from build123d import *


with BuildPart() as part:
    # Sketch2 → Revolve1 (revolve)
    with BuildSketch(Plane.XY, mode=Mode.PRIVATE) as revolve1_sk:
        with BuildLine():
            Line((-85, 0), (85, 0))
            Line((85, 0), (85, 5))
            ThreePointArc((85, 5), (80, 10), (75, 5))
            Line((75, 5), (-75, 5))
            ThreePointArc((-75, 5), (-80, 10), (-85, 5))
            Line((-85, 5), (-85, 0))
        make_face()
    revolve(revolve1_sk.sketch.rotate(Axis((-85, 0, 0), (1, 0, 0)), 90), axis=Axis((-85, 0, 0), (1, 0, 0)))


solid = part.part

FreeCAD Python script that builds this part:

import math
import FreeCAD as App
import Part
import Sketcher
from FreeCAD import Vector

doc = App.newDocument("Part")
body = doc.addObject("PartDesign::Body", "Body")

# Sketch on XY plane
sketch1 = doc.addObject("Sketcher::SketchObject", "Sketch")
body.addObject(sketch1)
sketch1.AttachmentSupport = (doc.XY_Plane, [""])
sketch1.MapMode = "FlatFace"
sketch1.addGeometry(Part.LineSegment(Vector(-85, 0, 0), Vector(85, 0, 0)), False)
sketch1.addGeometry(Part.LineSegment(Vector(85, 0, 0), Vector(85, 5, 0)), False)
sketch1.addGeometry(Part.ArcOfCircle(Part.Circle(Vector(80, 5, 0), Vector(0, 0, 1), 5), math.radians(0), math.radians(180)), False)
sketch1.addGeometry(Part.LineSegment(Vector(75, 5, 0), Vector(-75, 5, 0)), False)
sketch1.addGeometry(Part.ArcOfCircle(Part.Circle(Vector(-80, 5, 0), Vector(0, 0, 1), 5), math.radians(0), math.radians(180)), False)
sketch1.addGeometry(Part.LineSegment(Vector(-85, 5, 0), Vector(-85, 0, 0)), False)
sketch1.addConstraint(Sketcher.Constraint("Coincident", 0, 2, 1, 1))
sketch1.addConstraint(Sketcher.Constraint("Tangent", 1, 2, 2, 1))
sketch1.addConstraint(Sketcher.Constraint("Coincident", 2, 2, 3, 1))
sketch1.addConstraint(Sketcher.Constraint("Coincident", 3, 2, 4, 1))
sketch1.addConstraint(Sketcher.Constraint("Tangent", 4, 2, 5, 1))
sketch1.addConstraint(Sketcher.Constraint("Coincident", 5, 2, 0, 1))
sketch1.addConstraint(Sketcher.Constraint("Horizontal", 0))
sketch1.addConstraint(Sketcher.Constraint("Vertical", 1))
sketch1.addConstraint(Sketcher.Constraint("Horizontal", 3))
sketch1.addConstraint(Sketcher.Constraint("Vertical", 5))
sketch1.addConstraint(Sketcher.Constraint("Equal", 2, 4))
sketch1.addConstraint(Sketcher.Constraint("Symmetric", 0, 2, 5, 2, -1, 1))
sketch1.addConstraint(Sketcher.Constraint("Horizontal", 2, 3, 4, 3))
sketch1.addConstraint(Sketcher.Constraint("Horizontal", 1, 2, 2, 2))
sketch1.addConstraint(Sketcher.Constraint("Radius", 2, 5.0))
sketch1.addConstraint(Sketcher.Constraint("DistanceX", 0, 1, 0, 2, 170.0))
sketch1.addConstraint(Sketcher.Constraint("DistanceY", 1, 1, 1, 2, 5.0))
revolution = doc.addObject("PartDesign::Revolution", "Revolution")
body.addObject(revolution)
revolution.Profile = sketch1
revolution.ReferenceAxis = (sketch1, ["H_Axis"])
revolution.Angle = 360

doc.recompute()
